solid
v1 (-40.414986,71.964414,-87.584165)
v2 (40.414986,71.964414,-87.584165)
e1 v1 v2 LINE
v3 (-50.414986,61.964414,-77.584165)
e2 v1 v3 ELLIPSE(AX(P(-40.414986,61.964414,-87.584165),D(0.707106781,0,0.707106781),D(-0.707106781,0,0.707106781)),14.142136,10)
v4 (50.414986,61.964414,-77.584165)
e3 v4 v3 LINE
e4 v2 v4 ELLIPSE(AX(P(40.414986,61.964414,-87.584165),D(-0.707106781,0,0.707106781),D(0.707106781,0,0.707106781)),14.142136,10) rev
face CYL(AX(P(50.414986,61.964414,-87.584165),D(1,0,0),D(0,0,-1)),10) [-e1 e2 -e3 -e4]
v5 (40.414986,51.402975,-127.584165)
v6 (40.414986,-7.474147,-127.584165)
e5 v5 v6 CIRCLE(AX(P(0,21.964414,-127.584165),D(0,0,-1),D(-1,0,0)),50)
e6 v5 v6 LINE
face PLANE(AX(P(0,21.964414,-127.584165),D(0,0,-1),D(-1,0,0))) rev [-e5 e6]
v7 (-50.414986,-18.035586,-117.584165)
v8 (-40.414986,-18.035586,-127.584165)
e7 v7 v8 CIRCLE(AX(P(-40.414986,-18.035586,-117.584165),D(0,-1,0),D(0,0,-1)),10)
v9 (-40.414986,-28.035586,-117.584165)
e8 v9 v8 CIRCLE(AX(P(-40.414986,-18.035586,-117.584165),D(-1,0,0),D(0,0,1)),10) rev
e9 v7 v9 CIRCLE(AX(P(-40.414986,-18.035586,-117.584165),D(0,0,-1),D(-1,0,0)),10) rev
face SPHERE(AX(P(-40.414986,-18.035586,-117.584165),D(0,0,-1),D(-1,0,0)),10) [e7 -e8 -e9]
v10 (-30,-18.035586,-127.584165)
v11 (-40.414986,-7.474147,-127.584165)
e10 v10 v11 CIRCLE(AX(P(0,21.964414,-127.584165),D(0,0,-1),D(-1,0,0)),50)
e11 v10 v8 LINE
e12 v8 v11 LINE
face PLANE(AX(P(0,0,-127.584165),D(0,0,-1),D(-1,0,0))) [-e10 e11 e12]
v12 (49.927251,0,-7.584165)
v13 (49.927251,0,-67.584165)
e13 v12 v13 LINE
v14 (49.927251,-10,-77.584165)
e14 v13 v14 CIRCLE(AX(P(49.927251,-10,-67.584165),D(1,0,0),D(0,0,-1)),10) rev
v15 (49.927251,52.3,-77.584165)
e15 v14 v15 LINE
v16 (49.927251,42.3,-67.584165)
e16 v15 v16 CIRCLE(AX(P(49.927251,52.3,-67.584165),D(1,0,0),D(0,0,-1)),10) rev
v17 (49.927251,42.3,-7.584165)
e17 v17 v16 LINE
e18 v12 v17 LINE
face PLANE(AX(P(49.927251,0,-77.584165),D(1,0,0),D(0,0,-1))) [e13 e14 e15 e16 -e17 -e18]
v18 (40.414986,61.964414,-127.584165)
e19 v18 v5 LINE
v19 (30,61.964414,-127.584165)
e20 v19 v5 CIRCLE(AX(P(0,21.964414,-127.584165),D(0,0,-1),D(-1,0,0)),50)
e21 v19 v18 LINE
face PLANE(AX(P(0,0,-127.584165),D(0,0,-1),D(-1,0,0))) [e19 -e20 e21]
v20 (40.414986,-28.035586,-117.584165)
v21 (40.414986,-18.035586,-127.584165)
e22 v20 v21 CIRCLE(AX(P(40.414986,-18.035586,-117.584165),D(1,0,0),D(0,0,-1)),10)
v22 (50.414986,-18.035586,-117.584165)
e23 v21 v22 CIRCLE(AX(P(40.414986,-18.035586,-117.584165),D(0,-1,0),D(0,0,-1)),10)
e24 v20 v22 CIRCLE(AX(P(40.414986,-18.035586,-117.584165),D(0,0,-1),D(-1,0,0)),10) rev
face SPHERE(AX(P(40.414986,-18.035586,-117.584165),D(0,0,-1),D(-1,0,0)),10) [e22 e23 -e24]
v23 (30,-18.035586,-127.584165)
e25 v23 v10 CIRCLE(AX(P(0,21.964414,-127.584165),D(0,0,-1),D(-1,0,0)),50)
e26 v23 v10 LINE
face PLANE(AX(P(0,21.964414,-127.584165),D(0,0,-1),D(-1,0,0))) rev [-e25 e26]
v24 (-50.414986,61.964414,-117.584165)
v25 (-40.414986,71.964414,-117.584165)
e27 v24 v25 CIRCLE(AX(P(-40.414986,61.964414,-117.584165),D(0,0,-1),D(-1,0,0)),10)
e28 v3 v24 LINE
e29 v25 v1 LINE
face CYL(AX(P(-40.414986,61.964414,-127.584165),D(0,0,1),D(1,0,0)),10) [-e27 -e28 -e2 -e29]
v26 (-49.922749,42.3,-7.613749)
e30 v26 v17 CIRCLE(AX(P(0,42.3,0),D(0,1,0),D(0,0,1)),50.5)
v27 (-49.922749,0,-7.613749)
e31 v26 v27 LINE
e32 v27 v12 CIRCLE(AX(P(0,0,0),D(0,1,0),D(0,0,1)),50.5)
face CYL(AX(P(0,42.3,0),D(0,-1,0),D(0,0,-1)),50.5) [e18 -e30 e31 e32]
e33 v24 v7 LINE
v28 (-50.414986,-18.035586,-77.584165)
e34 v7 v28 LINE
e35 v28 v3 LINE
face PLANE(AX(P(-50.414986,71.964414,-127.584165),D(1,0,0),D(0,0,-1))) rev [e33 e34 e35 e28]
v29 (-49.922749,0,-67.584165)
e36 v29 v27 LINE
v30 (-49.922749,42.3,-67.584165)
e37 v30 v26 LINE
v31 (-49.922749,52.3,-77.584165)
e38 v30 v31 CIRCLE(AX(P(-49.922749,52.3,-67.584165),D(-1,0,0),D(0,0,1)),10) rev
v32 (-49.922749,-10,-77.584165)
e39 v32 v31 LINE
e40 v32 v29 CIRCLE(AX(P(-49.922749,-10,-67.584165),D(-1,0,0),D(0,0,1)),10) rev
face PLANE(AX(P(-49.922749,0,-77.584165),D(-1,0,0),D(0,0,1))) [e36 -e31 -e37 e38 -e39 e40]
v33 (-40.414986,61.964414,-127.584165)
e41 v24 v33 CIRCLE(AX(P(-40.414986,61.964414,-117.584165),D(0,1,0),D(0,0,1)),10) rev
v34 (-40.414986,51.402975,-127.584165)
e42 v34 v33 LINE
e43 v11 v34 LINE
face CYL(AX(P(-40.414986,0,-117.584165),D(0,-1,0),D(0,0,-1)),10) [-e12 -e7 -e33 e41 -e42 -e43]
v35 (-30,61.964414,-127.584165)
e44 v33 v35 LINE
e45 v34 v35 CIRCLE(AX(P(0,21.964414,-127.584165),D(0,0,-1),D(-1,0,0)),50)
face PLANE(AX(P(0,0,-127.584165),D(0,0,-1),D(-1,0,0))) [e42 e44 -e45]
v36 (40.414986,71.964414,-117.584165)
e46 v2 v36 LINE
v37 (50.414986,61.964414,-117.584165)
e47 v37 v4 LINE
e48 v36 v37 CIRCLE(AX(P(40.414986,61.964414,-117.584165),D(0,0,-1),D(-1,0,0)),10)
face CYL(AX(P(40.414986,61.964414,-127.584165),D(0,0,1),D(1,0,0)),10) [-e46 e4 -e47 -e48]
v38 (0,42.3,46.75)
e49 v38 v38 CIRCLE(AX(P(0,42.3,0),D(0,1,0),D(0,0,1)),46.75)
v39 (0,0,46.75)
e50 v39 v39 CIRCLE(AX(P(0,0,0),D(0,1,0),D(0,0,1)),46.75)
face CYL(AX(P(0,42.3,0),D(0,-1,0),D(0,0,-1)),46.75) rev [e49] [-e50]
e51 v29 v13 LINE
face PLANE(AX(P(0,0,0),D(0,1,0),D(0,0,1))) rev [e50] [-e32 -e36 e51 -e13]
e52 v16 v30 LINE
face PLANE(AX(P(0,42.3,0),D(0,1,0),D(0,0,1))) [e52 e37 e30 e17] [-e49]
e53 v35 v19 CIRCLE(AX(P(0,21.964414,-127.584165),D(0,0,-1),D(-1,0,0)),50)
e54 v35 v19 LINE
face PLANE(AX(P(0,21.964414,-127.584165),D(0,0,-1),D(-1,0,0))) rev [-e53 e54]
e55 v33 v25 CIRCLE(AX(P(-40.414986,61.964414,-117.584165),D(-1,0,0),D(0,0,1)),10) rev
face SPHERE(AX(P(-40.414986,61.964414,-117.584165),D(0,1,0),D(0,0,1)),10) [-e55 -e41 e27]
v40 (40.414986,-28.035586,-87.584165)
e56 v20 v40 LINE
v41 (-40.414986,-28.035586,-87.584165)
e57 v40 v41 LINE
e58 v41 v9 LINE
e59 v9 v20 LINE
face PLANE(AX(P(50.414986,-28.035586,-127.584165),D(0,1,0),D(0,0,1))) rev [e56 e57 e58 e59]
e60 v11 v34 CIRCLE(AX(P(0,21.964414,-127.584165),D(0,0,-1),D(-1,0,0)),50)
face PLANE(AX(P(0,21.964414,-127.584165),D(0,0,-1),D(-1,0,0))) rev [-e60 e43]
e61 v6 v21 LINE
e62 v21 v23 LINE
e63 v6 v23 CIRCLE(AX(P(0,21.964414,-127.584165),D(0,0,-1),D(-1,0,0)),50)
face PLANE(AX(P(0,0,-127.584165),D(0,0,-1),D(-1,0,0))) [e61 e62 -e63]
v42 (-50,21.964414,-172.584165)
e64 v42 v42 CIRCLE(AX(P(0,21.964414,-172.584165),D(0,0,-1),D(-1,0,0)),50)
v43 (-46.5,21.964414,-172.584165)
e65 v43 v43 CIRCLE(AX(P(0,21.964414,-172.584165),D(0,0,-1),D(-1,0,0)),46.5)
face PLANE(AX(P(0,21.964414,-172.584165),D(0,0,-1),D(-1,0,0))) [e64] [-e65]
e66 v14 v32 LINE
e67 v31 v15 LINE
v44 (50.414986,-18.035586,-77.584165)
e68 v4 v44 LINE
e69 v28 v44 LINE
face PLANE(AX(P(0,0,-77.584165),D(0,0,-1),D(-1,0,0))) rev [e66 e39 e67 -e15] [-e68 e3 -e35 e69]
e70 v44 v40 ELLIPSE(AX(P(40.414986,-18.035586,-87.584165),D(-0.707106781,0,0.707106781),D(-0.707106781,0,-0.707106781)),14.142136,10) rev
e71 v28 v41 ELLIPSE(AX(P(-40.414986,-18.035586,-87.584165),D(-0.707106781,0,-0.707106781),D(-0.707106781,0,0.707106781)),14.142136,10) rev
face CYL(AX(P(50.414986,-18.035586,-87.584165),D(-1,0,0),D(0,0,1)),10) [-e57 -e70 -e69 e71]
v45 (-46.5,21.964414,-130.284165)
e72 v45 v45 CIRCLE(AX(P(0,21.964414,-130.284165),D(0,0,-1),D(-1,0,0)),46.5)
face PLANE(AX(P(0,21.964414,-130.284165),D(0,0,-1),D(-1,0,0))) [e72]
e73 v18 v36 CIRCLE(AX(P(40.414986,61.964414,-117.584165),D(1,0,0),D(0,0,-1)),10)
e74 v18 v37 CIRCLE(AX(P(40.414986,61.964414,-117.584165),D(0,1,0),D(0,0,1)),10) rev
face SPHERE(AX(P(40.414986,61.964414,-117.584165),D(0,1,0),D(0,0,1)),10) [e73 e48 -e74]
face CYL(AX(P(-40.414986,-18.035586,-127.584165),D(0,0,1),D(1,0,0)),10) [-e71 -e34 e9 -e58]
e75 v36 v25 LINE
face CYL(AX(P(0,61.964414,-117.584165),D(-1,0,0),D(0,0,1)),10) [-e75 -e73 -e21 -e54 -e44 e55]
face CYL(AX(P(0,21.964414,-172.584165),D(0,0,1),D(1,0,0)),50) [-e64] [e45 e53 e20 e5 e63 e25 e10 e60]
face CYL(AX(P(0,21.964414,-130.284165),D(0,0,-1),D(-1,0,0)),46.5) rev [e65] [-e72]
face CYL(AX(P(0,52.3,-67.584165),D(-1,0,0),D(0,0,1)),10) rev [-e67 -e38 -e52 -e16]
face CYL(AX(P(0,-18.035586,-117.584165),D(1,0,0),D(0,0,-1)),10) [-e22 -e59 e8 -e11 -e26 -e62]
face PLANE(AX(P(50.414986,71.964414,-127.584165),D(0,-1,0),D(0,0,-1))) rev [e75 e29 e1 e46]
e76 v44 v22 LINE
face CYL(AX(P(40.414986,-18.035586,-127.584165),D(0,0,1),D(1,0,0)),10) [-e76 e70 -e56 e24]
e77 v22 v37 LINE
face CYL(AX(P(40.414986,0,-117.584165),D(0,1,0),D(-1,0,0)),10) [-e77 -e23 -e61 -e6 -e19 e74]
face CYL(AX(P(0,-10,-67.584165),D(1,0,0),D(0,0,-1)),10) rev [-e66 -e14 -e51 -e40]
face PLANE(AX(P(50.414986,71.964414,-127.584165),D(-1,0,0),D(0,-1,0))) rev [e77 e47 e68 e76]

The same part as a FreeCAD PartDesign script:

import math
import FreeCAD as App
import Part
import Sketcher
Q = App.Units.Quantity


def edges_at(feature, points):
    """Names of the edges that pass closest to the given points."""
    edges = feature.Shape.Edges
    near = lambda p: min(range(len(edges)), key=lambda i: edges[i].distToShape(Part.Vertex(*p))[0])
    return sorted({f"Edge{near(p) + 1}" for p in points})


def add_polygon(sketch, points):
    """Adds a closed chain of lines whose ends are joined by coincident constraints."""
    first, n = sketch.GeometryCount, len(points)
    for a, b in zip(points, points[1:] + points[:1]):
        sketch.addGeometry(Part.LineSegment(App.Vector(*a, 0), App.Vector(*b, 0)), False)
    for i in range(n):
        sketch.addConstraint(Sketcher.Constraint("Coincident", first + i, 2, first + (i + 1) % n, 1))

doc = App.newDocument("Part")
params = doc.addObject("Spreadsheet::Sheet", "Params")
for row, (alias, value) in enumerate([
    ("sketch1_diameter", "101 mm"),
    ("sketch1_diameter2", "93.5 mm"),
    ("pad1_length", "42.3 mm"),
    ("sketch2_height", "70 mm"),
    ("sketch2_width", "99.85 mm"),
    ("pad2_length", "42.3 mm"),
    ("sketch3_height", "100 mm"),
    ("pad3_length", "50 mm"),
    ("fillet_radius", "10 mm"),
    ("fillet2_radius", "10 mm"),
    ("sketch4_diameter", "100 mm"),
    ("pad4_length", "45 mm"),
    ("sketch5_diameter", "93 mm"),
    ("pocket1_length", "42.3 mm"),
], start=1):
    params.set(f"A{row}", alias)
    params.set(f"B{row}", "=" + value)
    params.setAlias(f"B{row}", alias)

body = doc.addObject("PartDesign::Body", "Body")

sketch1 = body.newObject("Sketcher::SketchObject", "Sketch")
sketch1.AttachmentSupport = (doc.getObject("XZ_Plane"), [""])
sketch1.MapMode = "FlatFace"
sketch1.addGeometry(Part.Circle(App.Vector(0, 0, 0), App.Vector(0, 0, 1), 50), False)
sketch1.addGeometry(Part.Circle(App.Vector(0, 0, 0), App.Vector(0, 0, 1), 47), False)
sketch1.addConstraint(Sketcher.Constraint("Coincident", 0, 3, -1, 1))
sketch1.addConstraint(Sketcher.Constraint("Coincident", 1, 3, -1, 1))
sketch1.addConstraint(Sketcher.Constraint("Diameter", 0, Q("101 mm")))
sketch1.addConstraint(Sketcher.Constraint("Diameter", 1, Q("93.5 mm")))
sketch1.setExpression("Constraints[2]", "Params.sketch1_diameter")
sketch1.setExpression("Constraints[3]", "Params.sketch1_diameter2")
pad1 = body.newObject("PartDesign::Pad", "Pad")
pad1.Profile = sketch1
pad1.setExpression("Length", "Params.pad1_length")
pad1.Reversed = True

sketch2 = body.newObject("Sketcher::SketchObject", "Sketch001")
sketch2.AttachmentSupport = (doc.getObject("XZ_Plane"), [""])
sketch2.MapMode = "FlatFace"
sketch2.AttachmentOffset = App.Placement(App.Vector(0, 0, -42.3), App.Rotation())
sketch2.addGeometry(Part.LineSegment(App.Vector(50, -78, 0), App.Vector(-50, -78, 0)), False)
sketch2.addGeometry(Part.LineSegment(App.Vector(-50, -78, 0), App.Vector(-50, -8, 0)), False)
sketch2.addGeometry(Part.ArcOfCircle(Part.Circle(App.Vector(0, 1, 0), App.Vector(0, 0, 1), 51), math.radians(-170), math.radians(-10)), False)
sketch2.addGeometry(Part.LineSegment(App.Vector(50, -8, 0), App.Vector(50, -78, 0)), False)
sketch2.addConstraint(Sketcher.Constraint("Coincident", 0, 2, 1, 1))
sketch2.addConstraint(Sketcher.Constraint("Coincident", 1, 2, 2, 1))
sketch2.addConstraint(Sketcher.Constraint("Coincident", 2, 2, 3, 1))
sketch2.addConstraint(Sketcher.Constraint("Coincident", 3, 2, 0, 1))
sketch2.addConstraint(Sketcher.Constraint("Horizontal", 0))
sketch2.addConstraint(Sketcher.Constraint("Vertical", 1))
sketch2.addConstraint(Sketcher.Constraint("Vertical", 3))
sketch2.addConstraint(Sketcher.Constraint("Horizontal", 1, 2, 2, 2))
sketch2.addConstraint(Sketcher.Constraint("DistanceY", 1, 1, 1, 2, Q("70 mm")))
sketch2.addConstraint(Sketcher.Constraint("DistanceX", 0, 2, 0, 1, Q("99.85 mm")))
sketch2.addConstraint(Sketcher.Constraint("Radius", 2, Q("50.654841 mm")))
sketch2.addConstraint(Sketcher.Constraint("DistanceX", -1, 1, 2, 3, Q("0.002251 mm")))
sketch2.addConstraint(Sketcher.Constraint("DistanceY", -1, 1, 2, 3, Q("0.98364 mm")))
sketch2.setExpression("Constraints[8]", "Params.sketch2_height")
sketch2.setExpression("Constraints[9]", "Params.sketch2_width")
pad2 = body.newObject("PartDesign::Pad", "Pad001")
pad2.Profile = sketch2
pad2.setExpression("Length", "Params.pad2_length")

sketch3 = body.newObject("Sketcher::SketchObject", "Sketch002")
sketch3.AttachmentSupport = (doc.getObject("XY_Plane"), [""])
sketch3.MapMode = "FlatFace"
sketch3.AttachmentOffset = App.Placement(App.Vector(0, 0, -77.584165), App.Rotation())
add_polygon(sketch3, [(50, 72), (50, -28), (-50, -28), (-50, 72)])
sketch3.addConstraint(Sketcher.Constraint("Vertical", 0))
sketch3.addConstraint(Sketcher.Constraint("Horizontal", 1))
sketch3.addConstraint(Sketcher.Constraint("Vertical", 2))
sketch3.addConstraint(Sketcher.Constraint("Horizontal", 3))
sketch3.addConstraint(Sketcher.Constraint("DistanceY", 0, 2, 0, 1, Q("100 mm")))
sketch3.addConstraint(Sketcher.Constraint("DistanceX", 1, 2, 1, 1, Q("100.829973 mm")))
sketch3.addConstraint(Sketcher.Constraint("DistanceX", -1, 1, 0, 2, Q("50.414986 mm")))
sketch3.addConstraint(Sketcher.Constraint("DistanceY", 0, 2, -1, 1, Q("28.035586 mm")))
sketch3.setExpression("Constraints[8]", "Params.sketch3_height")
pad3 = body.newObject("PartDesign::Pad", "Pad002")
pad3.Profile = sketch3
pad3.setExpression("Length", "Params.pad3_length")
pad3.Reversed = True
doc.recompute()

fillet = body.newObject("PartDesign::Fillet", "Fillet")
fillet.Base = (pad3, edges_at(pad3, [(0.002, 0, -77.584), (0.002, 42.3, -77.584)]))
fillet.setExpression("Radius", "Params.fillet_radius")
doc.recompute()

fillet2 = body.newObject("PartDesign::Fillet", "Fillet001")
fillet2.Base = (fillet, edges_at(fillet, [
    (-50.415, -28.036, -102.584),
    (0, 71.964, -77.584),
    (-50.415, 71.964, -102.584),
    (50.415, 71.964, -102.584),
    (0, -28.036, -77.584),
    (50.415, -28.036, -102.584),
    (-50.415, 21.964, -127.584),
    (0, 71.964, -127.584),
    (50.415, 21.964, -127.584),
    (0, -28.036, -127.584),
]))
fillet2.setExpression("Radius", "Params.fillet2_radius")

sketch4 = body.newObject("Sketcher::SketchObject", "Sketch003")
sketch4.AttachmentSupport = (doc.getObject("XY_Plane"), [""])
sketch4.MapMode = "FlatFace"
sketch4.AttachmentOffset = App.Placement(App.Vector(0, 0, -127.584165), App.Rotation())
sketch4.addGeometry(Part.Circle(App.Vector(0, 22, 0), App.Vector(0, 0, 1), 50), False)
sketch4.addConstraint(Sketcher.Constraint("PointOnObject", 0, 3, -2))
sketch4.addConstraint(Sketcher.Constraint("Diameter", 0, Q("100 mm")))
sketch4.addConstraint(Sketcher.Constraint("DistanceY", -1, 1, 0, 3, Q("21.964414 mm")))
sketch4.setExpression("Constraints[1]", "Params.sketch4_diameter")
pad4 = body.newObject("PartDesign::Pad", "Pad003")
pad4.Profile = sketch4
pad4.setExpression("Length", "Params.pad4_length")
pad4.Reversed = True

sketch5 = body.newObject("Sketcher::SketchObject", "Sketch004")
sketch5.AttachmentSupport = (doc.getObject("XY_Plane"), [""])
sketch5.MapMode = "FlatFace"
sketch5.AttachmentOffset = App.Placement(App.Vector(0, 0, -172.584165), App.Rotation())
sketch5.addGeometry(Part.Circle(App.Vector(0, 22, 0), App.Vector(0, 0, 1), 46), False)
sketch5.addConstraint(Sketcher.Constraint("PointOnObject", 0, 3, -2))
sketch5.addConstraint(Sketcher.Constraint("Diameter", 0, Q("93 mm")))
sketch5.addConstraint(Sketcher.Constraint("DistanceY", -1, 1, 0, 3, Q("21.964414 mm")))
sketch5.setExpression("Constraints[1]", "Params.sketch5_diameter")
pocket1 = body.newObject("PartDesign::Pocket", "Pocket")
pocket1.Profile = sketch5
pocket1.setExpression("Length", "Params.pocket1_length")
pocket1.Reversed = True

doc.recompute()
